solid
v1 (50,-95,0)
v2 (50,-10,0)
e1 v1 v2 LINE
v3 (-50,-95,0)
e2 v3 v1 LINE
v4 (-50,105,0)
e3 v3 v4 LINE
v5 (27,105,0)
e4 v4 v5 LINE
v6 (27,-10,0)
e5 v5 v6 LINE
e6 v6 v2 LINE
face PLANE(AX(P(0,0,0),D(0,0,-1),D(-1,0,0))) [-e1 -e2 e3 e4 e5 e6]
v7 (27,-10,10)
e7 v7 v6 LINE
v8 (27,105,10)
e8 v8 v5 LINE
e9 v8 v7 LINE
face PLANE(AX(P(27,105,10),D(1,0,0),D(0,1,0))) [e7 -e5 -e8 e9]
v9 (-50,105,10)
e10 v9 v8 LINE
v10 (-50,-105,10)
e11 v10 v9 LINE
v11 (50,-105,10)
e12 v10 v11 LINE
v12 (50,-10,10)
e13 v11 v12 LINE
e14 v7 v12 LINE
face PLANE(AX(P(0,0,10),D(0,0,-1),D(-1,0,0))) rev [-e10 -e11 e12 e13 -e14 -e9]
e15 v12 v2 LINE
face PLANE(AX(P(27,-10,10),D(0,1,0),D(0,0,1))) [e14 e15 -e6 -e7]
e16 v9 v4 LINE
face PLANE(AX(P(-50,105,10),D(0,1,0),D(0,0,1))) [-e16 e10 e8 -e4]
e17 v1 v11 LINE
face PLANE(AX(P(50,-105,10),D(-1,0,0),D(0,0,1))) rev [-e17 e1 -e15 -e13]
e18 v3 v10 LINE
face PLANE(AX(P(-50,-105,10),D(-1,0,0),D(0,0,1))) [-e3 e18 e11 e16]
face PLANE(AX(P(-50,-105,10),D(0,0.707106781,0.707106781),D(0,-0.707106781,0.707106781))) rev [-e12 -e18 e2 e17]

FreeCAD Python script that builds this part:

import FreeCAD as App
import Part
import Sketcher
from FreeCAD import Vector
Q = App.Units.Quantity


def add_polygon(sketch, points):
    """Adds a closed chain of lines whose ends are joined by coincident constraints."""
    first, n = sketch.GeometryCount, len(points)
    for a, b in zip(points, points[1:] + points[:1]):
        sketch.addGeometry(Part.LineSegment(App.Vector(*a, 0), App.Vector(*b, 0)), False)
    for i in range(n):
        sketch.addConstraint(Sketcher.Constraint("Coincident", first + i, 2, first + (i + 1) % n, 1))

doc = App.newDocument("Part")
body = doc.addObject("PartDesign::Body", "Body")

sketch1 = body.newObject("Sketcher::SketchObject", "Sketch")
sketch1.AttachmentSupport = (doc.getObject("XY_Plane"), [""])
sketch1.MapMode = "FlatFace"
add_polygon(sketch1, [(-50, -105), (50, -105), (50, -10), (27, -10), (27, 105), (-50, 105)])
sketch1.addConstraint([
    Sketcher.Constraint("Horizontal", 0),
    Sketcher.Constraint("Vertical", 1),
    Sketcher.Constraint("Horizontal", 2),
    Sketcher.Constraint("Vertical", 3),
    Sketcher.Constraint("Horizontal", 4),
    Sketcher.Constraint("Vertical", 5),
    Sketcher.Constraint("Symmetric", 0, 2, 4, 2, -1, 1),
    Sketcher.Constraint("DistanceX", 0, 1, 0, 2, Q("100 mm")),
    Sketcher.Constraint("DistanceX", 2, 2, 2, 1, Q("23 mm")),
    Sketcher.Constraint("DistanceY", 1, 1, 1, 2, Q("95 mm")),
    Sketcher.Constraint("DistanceY", 3, 1, 3, 2, Q("115 mm")),
])
pad1 = body.newObject("PartDesign::Pad", "Pad")
pad1.Profile = sketch1
pad1.Length = 10

sketch2 = body.newObject("Sketcher::SketchObject", "Sketch001")
sketch2.AttachmentSupport = (doc.getObject("YZ_Plane"), [""])
sketch2.MapMode = "FlatFace"
sketch2.AttachmentOffset = App.Placement(Vector(0, 0, 50), App.Rotation())
add_polygon(sketch2, [(-105, 10), (-105, 0), (-95, 0)])
sketch2.addConstraint([
    Sketcher.Constraint("Vertical", 0),
    Sketcher.Constraint("Horizontal", 1),
    Sketcher.Constraint("PointOnObject", 0, 2, -1),
    Sketcher.Constraint("Equal", 1, 0),
    Sketcher.Constraint("DistanceX", 1, 1, 1, 2, Q("10 mm")),
    Sketcher.Constraint("DistanceX", 0, 2, -1, 1, Q("105 mm")),
])
pocket1 = body.newObject("PartDesign::Pocket", "Pocket")
pocket1.Profile = sketch2
pocket1.Length = 100

doc.recompute()
